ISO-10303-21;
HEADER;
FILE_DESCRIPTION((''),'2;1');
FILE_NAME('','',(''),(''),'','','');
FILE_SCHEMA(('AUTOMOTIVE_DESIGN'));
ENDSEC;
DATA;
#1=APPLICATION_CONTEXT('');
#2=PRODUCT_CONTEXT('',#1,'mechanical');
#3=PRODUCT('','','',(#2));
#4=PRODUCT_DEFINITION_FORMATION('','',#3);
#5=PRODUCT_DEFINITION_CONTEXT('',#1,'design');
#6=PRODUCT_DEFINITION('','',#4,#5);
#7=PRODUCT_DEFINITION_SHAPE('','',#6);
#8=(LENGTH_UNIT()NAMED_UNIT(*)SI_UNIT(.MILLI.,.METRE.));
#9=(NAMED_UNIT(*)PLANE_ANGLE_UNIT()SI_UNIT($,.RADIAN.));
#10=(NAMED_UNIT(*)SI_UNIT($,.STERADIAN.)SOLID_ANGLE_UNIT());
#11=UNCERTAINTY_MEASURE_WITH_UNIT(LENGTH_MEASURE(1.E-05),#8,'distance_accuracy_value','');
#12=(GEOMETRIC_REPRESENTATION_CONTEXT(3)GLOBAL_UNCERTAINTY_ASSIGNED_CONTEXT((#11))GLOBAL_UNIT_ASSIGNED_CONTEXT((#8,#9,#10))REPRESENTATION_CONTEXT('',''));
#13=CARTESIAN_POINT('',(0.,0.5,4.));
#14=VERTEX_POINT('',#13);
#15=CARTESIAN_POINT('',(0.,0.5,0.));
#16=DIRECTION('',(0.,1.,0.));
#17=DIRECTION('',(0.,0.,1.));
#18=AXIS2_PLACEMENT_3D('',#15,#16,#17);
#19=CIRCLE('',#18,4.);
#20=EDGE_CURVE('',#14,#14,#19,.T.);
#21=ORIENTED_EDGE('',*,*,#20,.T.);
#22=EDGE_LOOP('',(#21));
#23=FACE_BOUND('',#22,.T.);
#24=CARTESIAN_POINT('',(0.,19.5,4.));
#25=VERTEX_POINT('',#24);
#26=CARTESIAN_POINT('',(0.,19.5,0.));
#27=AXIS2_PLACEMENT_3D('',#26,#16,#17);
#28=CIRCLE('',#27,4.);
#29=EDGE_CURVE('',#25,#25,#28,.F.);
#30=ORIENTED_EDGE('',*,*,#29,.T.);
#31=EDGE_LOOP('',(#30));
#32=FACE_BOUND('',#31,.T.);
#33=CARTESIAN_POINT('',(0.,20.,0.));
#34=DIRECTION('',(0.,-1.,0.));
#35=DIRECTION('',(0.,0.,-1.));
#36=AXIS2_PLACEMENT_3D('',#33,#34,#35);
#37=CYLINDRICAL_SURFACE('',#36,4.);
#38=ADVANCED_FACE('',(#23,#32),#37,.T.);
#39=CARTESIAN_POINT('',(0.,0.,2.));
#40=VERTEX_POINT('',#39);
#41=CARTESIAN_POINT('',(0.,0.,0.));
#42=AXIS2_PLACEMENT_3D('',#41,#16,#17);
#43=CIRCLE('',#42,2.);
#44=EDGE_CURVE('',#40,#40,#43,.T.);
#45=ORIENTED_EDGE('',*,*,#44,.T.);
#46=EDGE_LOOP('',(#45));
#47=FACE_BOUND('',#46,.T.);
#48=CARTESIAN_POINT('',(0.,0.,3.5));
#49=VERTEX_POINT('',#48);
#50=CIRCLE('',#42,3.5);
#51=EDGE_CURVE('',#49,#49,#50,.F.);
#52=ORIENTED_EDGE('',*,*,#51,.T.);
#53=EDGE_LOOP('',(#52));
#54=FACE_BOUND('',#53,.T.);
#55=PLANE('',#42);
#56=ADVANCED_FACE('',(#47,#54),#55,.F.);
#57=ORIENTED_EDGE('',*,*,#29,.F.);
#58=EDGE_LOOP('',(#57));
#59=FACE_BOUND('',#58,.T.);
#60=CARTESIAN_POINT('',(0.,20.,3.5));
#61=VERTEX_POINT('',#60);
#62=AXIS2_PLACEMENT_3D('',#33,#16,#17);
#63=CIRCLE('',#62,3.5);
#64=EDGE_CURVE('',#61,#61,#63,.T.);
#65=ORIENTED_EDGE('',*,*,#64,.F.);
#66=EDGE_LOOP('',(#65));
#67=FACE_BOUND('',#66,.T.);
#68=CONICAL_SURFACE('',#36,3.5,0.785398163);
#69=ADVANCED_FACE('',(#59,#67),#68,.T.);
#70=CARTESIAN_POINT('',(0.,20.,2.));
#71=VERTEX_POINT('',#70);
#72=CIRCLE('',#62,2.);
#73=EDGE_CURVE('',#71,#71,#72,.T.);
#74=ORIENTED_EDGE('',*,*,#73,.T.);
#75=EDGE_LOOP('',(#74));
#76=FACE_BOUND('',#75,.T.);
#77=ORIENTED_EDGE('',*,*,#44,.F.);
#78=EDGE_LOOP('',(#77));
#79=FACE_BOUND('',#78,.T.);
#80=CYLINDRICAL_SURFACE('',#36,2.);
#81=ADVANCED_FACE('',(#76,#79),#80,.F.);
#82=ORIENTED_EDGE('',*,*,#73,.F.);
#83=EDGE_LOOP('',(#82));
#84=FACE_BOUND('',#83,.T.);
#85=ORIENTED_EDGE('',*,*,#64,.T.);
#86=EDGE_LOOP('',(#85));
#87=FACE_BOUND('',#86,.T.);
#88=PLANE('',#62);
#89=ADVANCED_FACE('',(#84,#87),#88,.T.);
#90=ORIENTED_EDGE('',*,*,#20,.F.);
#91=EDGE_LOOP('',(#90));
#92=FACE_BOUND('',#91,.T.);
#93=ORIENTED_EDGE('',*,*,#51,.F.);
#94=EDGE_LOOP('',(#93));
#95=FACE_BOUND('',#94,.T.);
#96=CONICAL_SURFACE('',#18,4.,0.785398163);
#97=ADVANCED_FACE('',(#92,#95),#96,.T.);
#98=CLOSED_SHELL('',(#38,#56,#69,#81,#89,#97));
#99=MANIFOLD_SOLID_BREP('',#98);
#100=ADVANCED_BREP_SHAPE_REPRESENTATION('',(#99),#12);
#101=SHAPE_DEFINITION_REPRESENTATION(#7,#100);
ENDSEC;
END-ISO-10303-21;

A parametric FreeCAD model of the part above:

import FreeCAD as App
import Part
import Sketcher

V = App.Vector


def edges_at(feature, points):
    """Names of the edges that pass closest to the given points."""
    edges = feature.Shape.Edges
    near = lambda p: min(range(len(edges)), key=lambda i: edges[i].distToShape(Part.Vertex(*p))[0])
    return sorted({f"Edge{near(p) + 1}" for p in points})

doc = App.newDocument("Part")
body = doc.addObject("PartDesign::Body", "Body")

sketch1 = body.newObject("Sketcher::SketchObject", "Sketch")
sketch1.AttachmentSupport = (doc.getObject("XZ_Plane"), [""])
sketch1.MapMode = "FlatFace"
sketch1.addGeometry(Part.Circle(V(0, 0, 0), V(0, 0, 1), 4), False)
sketch1.addGeometry(Part.Circle(V(0, 0, 0), V(0, 0, 1), 2), False)
sketch1.addConstraint(Sketcher.Constraint("Coincident", 0, 3, -1, 1))
sketch1.addConstraint(Sketcher.Constraint("Coincident", 1, 3, -1, 1))
sketch1.addConstraint(Sketcher.Constraint("Diameter", 0, 8.0))
sketch1.addConstraint(Sketcher.Constraint("Diameter", 1, 4.0))
pad1 = body.newObject("PartDesign::Pad", "Pad")
pad1.Profile = sketch1
pad1.Length = 20
pad1.Reversed = True
doc.recompute()

chamfer = body.newObject("PartDesign::Chamfer", "Chamfer")
chamfer.Base = (pad1, edges_at(pad1, [(0, 0, -4), (0, 20, -4)]))
chamfer.Size = 0.5

doc.recompute()
